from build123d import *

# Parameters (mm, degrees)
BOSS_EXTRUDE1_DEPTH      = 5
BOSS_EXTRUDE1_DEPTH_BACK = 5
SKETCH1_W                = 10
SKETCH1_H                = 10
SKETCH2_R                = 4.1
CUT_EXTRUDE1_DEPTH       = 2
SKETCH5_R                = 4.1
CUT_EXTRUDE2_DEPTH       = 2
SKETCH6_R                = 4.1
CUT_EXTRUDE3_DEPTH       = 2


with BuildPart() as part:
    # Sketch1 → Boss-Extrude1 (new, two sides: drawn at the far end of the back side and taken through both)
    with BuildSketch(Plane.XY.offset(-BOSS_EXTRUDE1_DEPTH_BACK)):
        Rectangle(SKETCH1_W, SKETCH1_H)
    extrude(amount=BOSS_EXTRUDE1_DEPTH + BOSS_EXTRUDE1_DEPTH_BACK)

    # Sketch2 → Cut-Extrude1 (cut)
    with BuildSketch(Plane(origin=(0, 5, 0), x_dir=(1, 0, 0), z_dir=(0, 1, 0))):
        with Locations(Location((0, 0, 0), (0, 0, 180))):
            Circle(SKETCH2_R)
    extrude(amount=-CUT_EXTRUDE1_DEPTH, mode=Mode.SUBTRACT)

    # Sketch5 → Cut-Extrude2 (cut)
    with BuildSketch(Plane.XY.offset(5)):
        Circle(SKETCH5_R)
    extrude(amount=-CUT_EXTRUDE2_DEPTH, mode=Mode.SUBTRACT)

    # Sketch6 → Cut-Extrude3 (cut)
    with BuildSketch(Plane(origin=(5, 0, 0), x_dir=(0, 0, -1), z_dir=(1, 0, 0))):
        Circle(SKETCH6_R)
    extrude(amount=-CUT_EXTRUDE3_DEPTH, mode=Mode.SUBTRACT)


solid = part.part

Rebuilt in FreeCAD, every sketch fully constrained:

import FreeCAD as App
import Part
import Sketcher
from FreeCAD import Vector
Q = App.Units.Quantity


def add_polygon(sketch, points):
    """Adds a closed chain of lines whose ends are joined by coincident constraints."""
    first, n = sketch.GeometryCount, len(points)
    for a, b in zip(points, points[1:] + points[:1]):
        sketch.addGeometry(Part.LineSegment(App.Vector(*a, 0), App.Vector(*b, 0)), False)
    for i in range(n):
        sketch.addConstraint(Sketcher.Constraint("Coincident", first + i, 2, first + (i + 1) % n, 1))

doc = App.newDocument("Part")
body = doc.addObject("PartDesign::Body", "Body")

# Sketch on XY plane
sketch1 = body.newObject("Sketcher::SketchObject", "Sketch")
sketch1.AttachmentSupport = (doc.getObject("XY_Plane"), [""])
sketch1.MapMode = "FlatFace"
add_polygon(sketch1, [(-5, 5), (-5, -5), (5, -5), (5, 5)])  # lines 0-3
sketch1.addConstraint([
    Sketcher.Constraint("Vertical", 0),
    Sketcher.Constraint("Horizontal", 1),
    Sketcher.Constraint("Vertical", 2),
    Sketcher.Constraint("Horizontal", 3),
    Sketcher.Constraint("Symmetric", 0, 2, 2, 2, -1, 1),
    Sketcher.Constraint("Equal", 3, 0),
    Sketcher.Constraint("DistanceX", 1, 1, 1, 2, Q("10 mm")),
])
pad1 = body.newObject("PartDesign::Pad", "Pad")
pad1.Profile = sketch1
pad1.Type = "TwoLengths"
pad1.Length = 5
pad1.Length2 = 5

# Sketch on XZ plane
sketch2 = body.newObject("Sketcher::SketchObject", "Sketch001")
sketch2.AttachmentSupport = (doc.getObject("XZ_Plane"), [""])
sketch2.MapMode = "FlatFace"
sketch2.AttachmentOffset = App.Placement(Vector(0, 0, -5), App.Rotation())
sketch2.addGeometry(Part.Circle(Vector(0, 0, 0), Vector(0, 0, 1), 4.1), False)
sketch2.addConstraint([
    Sketcher.Constraint("Coincident", 0, 3, -1, 1),
    Sketcher.Constraint("Diameter", 0, Q("8.2 mm")),
])
pocket1 = body.newObject("PartDesign::Pocket", "Pocket")
pocket1.Profile = sketch2
pocket1.Length = 2
pocket1.Reversed = True

# Sketch on XY plane
sketch3 = body.newObject("Sketcher::SketchObject", "Sketch002")
sketch3.AttachmentSupport = (doc.getObject("XY_Plane"), [""])
sketch3.MapMode = "FlatFace"
sketch3.AttachmentOffset = App.Placement(Vector(0, 0, 5), App.Rotation())
sketch3.addGeometry(Part.Circle(Vector(0, 0, 0), Vector(0, 0, 1), 4.1), False)
sketch3.addConstraint([
    Sketcher.Constraint("Coincident", 0, 3, -1, 1),
    Sketcher.Constraint("Diameter", 0, Q("8.2 mm")),
])
pocket2 = body.newObject("PartDesign::Pocket", "Pocket001")
pocket2.Profile = sketch3
pocket2.Length = 2

# Sketch on YZ plane
sketch4 = body.newObject("Sketcher::SketchObject", "Sketch003")
sketch4.AttachmentSupport = (doc.getObject("YZ_Plane"), [""])
sketch4.MapMode = "FlatFace"
sketch4.AttachmentOffset = App.Placement(Vector(0, 0, 5), App.Rotation())
sketch4.addGeometry(Part.Circle(Vector(0, 0, 0), Vector(0, 0, 1), 4.1), False)
sketch4.addConstraint([
    Sketcher.Constraint("Coincident", 0, 3, -1, 1),
    Sketcher.Constraint("Diameter", 0, Q("8.2 mm")),
])
pocket3 = body.newObject("PartDesign::Pocket", "Pocket002")
pocket3.Profile = sketch4
pocket3.Length = 2

doc.recompute()
